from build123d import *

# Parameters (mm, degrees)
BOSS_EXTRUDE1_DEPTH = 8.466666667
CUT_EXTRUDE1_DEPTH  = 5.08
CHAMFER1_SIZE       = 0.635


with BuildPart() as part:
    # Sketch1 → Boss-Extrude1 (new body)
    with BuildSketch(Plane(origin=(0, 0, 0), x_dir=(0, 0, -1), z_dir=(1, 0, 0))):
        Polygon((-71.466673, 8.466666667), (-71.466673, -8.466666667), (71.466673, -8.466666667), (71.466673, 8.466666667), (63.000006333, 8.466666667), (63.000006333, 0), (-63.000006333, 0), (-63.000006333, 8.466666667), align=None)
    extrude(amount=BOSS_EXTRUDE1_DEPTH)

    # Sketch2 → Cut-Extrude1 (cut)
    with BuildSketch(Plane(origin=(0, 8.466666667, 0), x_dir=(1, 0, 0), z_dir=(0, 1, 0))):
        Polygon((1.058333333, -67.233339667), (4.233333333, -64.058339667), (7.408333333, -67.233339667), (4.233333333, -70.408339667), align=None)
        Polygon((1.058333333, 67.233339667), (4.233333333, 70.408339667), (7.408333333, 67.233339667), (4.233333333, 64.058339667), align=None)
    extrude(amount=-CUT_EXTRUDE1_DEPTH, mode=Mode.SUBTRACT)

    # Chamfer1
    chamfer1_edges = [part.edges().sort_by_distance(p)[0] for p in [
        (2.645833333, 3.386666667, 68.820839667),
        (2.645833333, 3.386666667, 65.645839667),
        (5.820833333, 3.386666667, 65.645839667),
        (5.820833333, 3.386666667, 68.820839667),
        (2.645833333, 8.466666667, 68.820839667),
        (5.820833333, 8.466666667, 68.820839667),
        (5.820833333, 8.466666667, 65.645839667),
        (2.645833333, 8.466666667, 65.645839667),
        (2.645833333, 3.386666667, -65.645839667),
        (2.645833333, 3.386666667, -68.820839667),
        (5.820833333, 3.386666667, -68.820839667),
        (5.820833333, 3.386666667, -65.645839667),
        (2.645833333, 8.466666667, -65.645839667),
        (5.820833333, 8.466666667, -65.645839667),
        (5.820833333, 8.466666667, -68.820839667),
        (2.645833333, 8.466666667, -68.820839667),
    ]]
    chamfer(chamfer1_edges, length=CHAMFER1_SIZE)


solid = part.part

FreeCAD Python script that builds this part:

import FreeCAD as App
import Part
import Sketcher
from FreeCAD import Vector
Q = App.Units.Quantity


def edges_at(feature, points):
    """Names of the edges that pass closest to the given points."""
    edges = feature.Shape.Edges
    near = lambda p: min(range(len(edges)), key=lambda i: edges[i].distToShape(Part.Vertex(*p))[0])
    return sorted({f"Edge{near(p) + 1}" for p in points})

doc = App.newDocument("Part")
body = doc.addObject("PartDesign::Body", "Body")

# Sketch on YZ plane
sketch1 = doc.addObject("Sketcher::SketchObject", "Sketch")
body.addObject(sketch1)
sketch1.AttachmentSupport = (doc.YZ_Plane, [""])
sketch1.MapMode = "FlatFace"
sketch1.addGeometry([
    Part.LineSegment(Vector(8, 71, 0), Vector(-8, 71, 0)),  # 0
    Part.LineSegment(Vector(-8, 71, 0), Vector(-8, -71, 0)),  # 1
    Part.LineSegment(Vector(-8, -71, 0), Vector(8, -71, 0)),  # 2
    Part.LineSegment(Vector(8, -71, 0), Vector(8, -63, 0)),  # 3
    Part.LineSegment(Vector(8, -63, 0), Vector(0, -63, 0)),  # 4
    Part.LineSegment(Vector(0, -63, 0), Vector(0, 63, 0)),  # 5
    Part.LineSegment(Vector(0, 63, 0), Vector(8, 63, 0)),  # 6
    Part.LineSegment(Vector(8, 63, 0), Vector(8, 71, 0)),  # 7
], False)
sketch1.addConstraint([
    Sketcher.Constraint("Coincident", 0, 2, 1, 1),
    Sketcher.Constraint("Coincident", 1, 2, 2, 1),
    Sketcher.Constraint("Coincident", 2, 2, 3, 1),
    Sketcher.Constraint("Coincident", 3, 2, 4, 1),
    Sketcher.Constraint("Coincident", 4, 2, 5, 1),
    Sketcher.Constraint("Coincident", 5, 2, 6, 1),
    Sketcher.Constraint("Coincident", 6, 2, 7, 1),
    Sketcher.Constraint("Coincident", 7, 2, 0, 1),
    Sketcher.Constraint("Horizontal", 0),
    Sketcher.Constraint("Vertical", 1),
    Sketcher.Constraint("Horizontal", 2),
    Sketcher.Constraint("Vertical", 3),
    Sketcher.Constraint("Horizontal", 4),
    Sketcher.Constraint("Vertical", 5),
    Sketcher.Constraint("Horizontal", 6),
    Sketcher.Constraint("Vertical", 7),
    Sketcher.Constraint("Symmetric", 0, 2, 2, 2, -1, 1),
    Sketcher.Constraint("Symmetric", 4, 2, 5, 2, -1, 1),
    Sketcher.Constraint("Vertical", 3, 2, 6, 2),
    Sketcher.Constraint("Equal", 6, 3),
    Sketcher.Constraint("DistanceX", 0, 2, 0, 1, Q("16.933333 mm")),
    Sketcher.Constraint("DistanceY", 1, 2, 1, 1, Q("142.933346 mm")),
])
pad1 = doc.addObject("PartDesign::Pad", "Pad")
body.addObject(pad1)
pad1.Profile = sketch1
pad1.Length = 8.466667

# Sketch on XZ plane
sketch2 = doc.addObject("Sketcher::SketchObject", "Sketch001")
body.addObject(sketch2)
sketch2.AttachmentSupport = (doc.XZ_Plane, [""])
sketch2.MapMode = "FlatFace"
sketch2.AttachmentOffset = App.Placement(Vector(0, 0, -8.466667), App.Rotation())
sketch2.addGeometry([
    Part.LineSegment(Vector(4.2, 64.1, 0), Vector(1.1, 67.2, 0)),  # 0
    Part.LineSegment(Vector(1.1, 67.2, 0), Vector(4.2, 70.4, 0)),  # 1
    Part.LineSegment(Vector(4.2, 70.4, 0), Vector(7.4, 67.2, 0)),  # 2
    Part.LineSegment(Vector(7.4, 67.2, 0), Vector(4.2, 64.1, 0)),  # 3
    Part.LineSegment(Vector(4.2, -70.4, 0), Vector(1.1, -67.2, 0)),  # 4
    Part.LineSegment(Vector(1.1, -67.2, 0), Vector(4.2, -64.1, 0)),  # 5
    Part.LineSegment(Vector(4.2, -64.1, 0), Vector(7.4, -67.2, 0)),  # 6
    Part.LineSegment(Vector(7.4, -67.2, 0), Vector(4.2, -70.4, 0)),  # 7
], False)
sketch2.addConstraint([
    Sketcher.Constraint("Coincident", 0, 2, 1, 1),
    Sketcher.Constraint("Coincident", 1, 2, 2, 1),
    Sketcher.Constraint("Coincident", 2, 2, 3, 1),
    Sketcher.Constraint("Coincident", 3, 2, 0, 1),
    Sketcher.Constraint("Coincident", 4, 2, 5, 1),
    Sketcher.Constraint("Coincident", 5, 2, 6, 1),
    Sketcher.Constraint("Coincident", 6, 2, 7, 1),
    Sketcher.Constraint("Coincident", 7, 2, 4, 1),
    Sketcher.Constraint("Symmetric", 0, 2, 4, 2, -1),
    Sketcher.Constraint("Symmetric", 3, 2, 5, 2, -1),
    Sketcher.Constraint("Symmetric", 2, 2, 6, 2, -1),
    Sketcher.Constraint("Symmetric", 1, 2, 7, 2, -1),
    Sketcher.Constraint("Perpendicular", 0, 1),
    Sketcher.Constraint("Perpendicular", 1, 2),
    Sketcher.Constraint("Perpendicular", 2, 3),
    Sketcher.Constraint("Perpendicular", 3, 4),
    Sketcher.Constraint("Horizontal", 0, 2, 2, 2),
    Sketcher.Constraint("DistanceX", 0, 2, 2, 2, Q("0.25 in")),
    Sketcher.Constraint("DistanceY", -1, 1, 0, 2, Q("67.23334 mm")),
    Sketcher.Constraint("DistanceX", -1, 1, 0, 2, Q("1.058333 mm")),
])
pocket1 = doc.addObject("PartDesign::Pocket", "Pocket")
body.addObject(pocket1)
pocket1.Profile = sketch2
pocket1.Length = Q("0.2 in")
pocket1.Reversed = True
doc.recompute()

chamfer = doc.addObject("PartDesign::Chamfer", "Chamfer")
body.addObject(chamfer)
chamfer.Base = (pocket1, edges_at(pocket1, [
    (2.646, 3.387, 68.821),
    (2.646, 3.387, 65.646),
    (5.821, 3.387, 65.646),
    (5.821, 3.387, 68.821),
    (2.646, 8.467, 68.821),
    (5.821, 8.467, 68.821),
    (5.821, 8.467, 65.646),
    (2.646, 8.467, 65.646),
    (2.646, 3.387, -65.646),
    (2.646, 3.387, -68.821),
    (5.821, 3.387, -68.821),
    (5.821, 3.387, -65.646),
    (2.646, 8.467, -65.646),
    (5.821, 8.467, -65.646),
    (5.821, 8.467, -68.821),
    (2.646, 8.467, -68.821),
]))
chamfer.Size = Q("0.025 in")

doc.recompute()
